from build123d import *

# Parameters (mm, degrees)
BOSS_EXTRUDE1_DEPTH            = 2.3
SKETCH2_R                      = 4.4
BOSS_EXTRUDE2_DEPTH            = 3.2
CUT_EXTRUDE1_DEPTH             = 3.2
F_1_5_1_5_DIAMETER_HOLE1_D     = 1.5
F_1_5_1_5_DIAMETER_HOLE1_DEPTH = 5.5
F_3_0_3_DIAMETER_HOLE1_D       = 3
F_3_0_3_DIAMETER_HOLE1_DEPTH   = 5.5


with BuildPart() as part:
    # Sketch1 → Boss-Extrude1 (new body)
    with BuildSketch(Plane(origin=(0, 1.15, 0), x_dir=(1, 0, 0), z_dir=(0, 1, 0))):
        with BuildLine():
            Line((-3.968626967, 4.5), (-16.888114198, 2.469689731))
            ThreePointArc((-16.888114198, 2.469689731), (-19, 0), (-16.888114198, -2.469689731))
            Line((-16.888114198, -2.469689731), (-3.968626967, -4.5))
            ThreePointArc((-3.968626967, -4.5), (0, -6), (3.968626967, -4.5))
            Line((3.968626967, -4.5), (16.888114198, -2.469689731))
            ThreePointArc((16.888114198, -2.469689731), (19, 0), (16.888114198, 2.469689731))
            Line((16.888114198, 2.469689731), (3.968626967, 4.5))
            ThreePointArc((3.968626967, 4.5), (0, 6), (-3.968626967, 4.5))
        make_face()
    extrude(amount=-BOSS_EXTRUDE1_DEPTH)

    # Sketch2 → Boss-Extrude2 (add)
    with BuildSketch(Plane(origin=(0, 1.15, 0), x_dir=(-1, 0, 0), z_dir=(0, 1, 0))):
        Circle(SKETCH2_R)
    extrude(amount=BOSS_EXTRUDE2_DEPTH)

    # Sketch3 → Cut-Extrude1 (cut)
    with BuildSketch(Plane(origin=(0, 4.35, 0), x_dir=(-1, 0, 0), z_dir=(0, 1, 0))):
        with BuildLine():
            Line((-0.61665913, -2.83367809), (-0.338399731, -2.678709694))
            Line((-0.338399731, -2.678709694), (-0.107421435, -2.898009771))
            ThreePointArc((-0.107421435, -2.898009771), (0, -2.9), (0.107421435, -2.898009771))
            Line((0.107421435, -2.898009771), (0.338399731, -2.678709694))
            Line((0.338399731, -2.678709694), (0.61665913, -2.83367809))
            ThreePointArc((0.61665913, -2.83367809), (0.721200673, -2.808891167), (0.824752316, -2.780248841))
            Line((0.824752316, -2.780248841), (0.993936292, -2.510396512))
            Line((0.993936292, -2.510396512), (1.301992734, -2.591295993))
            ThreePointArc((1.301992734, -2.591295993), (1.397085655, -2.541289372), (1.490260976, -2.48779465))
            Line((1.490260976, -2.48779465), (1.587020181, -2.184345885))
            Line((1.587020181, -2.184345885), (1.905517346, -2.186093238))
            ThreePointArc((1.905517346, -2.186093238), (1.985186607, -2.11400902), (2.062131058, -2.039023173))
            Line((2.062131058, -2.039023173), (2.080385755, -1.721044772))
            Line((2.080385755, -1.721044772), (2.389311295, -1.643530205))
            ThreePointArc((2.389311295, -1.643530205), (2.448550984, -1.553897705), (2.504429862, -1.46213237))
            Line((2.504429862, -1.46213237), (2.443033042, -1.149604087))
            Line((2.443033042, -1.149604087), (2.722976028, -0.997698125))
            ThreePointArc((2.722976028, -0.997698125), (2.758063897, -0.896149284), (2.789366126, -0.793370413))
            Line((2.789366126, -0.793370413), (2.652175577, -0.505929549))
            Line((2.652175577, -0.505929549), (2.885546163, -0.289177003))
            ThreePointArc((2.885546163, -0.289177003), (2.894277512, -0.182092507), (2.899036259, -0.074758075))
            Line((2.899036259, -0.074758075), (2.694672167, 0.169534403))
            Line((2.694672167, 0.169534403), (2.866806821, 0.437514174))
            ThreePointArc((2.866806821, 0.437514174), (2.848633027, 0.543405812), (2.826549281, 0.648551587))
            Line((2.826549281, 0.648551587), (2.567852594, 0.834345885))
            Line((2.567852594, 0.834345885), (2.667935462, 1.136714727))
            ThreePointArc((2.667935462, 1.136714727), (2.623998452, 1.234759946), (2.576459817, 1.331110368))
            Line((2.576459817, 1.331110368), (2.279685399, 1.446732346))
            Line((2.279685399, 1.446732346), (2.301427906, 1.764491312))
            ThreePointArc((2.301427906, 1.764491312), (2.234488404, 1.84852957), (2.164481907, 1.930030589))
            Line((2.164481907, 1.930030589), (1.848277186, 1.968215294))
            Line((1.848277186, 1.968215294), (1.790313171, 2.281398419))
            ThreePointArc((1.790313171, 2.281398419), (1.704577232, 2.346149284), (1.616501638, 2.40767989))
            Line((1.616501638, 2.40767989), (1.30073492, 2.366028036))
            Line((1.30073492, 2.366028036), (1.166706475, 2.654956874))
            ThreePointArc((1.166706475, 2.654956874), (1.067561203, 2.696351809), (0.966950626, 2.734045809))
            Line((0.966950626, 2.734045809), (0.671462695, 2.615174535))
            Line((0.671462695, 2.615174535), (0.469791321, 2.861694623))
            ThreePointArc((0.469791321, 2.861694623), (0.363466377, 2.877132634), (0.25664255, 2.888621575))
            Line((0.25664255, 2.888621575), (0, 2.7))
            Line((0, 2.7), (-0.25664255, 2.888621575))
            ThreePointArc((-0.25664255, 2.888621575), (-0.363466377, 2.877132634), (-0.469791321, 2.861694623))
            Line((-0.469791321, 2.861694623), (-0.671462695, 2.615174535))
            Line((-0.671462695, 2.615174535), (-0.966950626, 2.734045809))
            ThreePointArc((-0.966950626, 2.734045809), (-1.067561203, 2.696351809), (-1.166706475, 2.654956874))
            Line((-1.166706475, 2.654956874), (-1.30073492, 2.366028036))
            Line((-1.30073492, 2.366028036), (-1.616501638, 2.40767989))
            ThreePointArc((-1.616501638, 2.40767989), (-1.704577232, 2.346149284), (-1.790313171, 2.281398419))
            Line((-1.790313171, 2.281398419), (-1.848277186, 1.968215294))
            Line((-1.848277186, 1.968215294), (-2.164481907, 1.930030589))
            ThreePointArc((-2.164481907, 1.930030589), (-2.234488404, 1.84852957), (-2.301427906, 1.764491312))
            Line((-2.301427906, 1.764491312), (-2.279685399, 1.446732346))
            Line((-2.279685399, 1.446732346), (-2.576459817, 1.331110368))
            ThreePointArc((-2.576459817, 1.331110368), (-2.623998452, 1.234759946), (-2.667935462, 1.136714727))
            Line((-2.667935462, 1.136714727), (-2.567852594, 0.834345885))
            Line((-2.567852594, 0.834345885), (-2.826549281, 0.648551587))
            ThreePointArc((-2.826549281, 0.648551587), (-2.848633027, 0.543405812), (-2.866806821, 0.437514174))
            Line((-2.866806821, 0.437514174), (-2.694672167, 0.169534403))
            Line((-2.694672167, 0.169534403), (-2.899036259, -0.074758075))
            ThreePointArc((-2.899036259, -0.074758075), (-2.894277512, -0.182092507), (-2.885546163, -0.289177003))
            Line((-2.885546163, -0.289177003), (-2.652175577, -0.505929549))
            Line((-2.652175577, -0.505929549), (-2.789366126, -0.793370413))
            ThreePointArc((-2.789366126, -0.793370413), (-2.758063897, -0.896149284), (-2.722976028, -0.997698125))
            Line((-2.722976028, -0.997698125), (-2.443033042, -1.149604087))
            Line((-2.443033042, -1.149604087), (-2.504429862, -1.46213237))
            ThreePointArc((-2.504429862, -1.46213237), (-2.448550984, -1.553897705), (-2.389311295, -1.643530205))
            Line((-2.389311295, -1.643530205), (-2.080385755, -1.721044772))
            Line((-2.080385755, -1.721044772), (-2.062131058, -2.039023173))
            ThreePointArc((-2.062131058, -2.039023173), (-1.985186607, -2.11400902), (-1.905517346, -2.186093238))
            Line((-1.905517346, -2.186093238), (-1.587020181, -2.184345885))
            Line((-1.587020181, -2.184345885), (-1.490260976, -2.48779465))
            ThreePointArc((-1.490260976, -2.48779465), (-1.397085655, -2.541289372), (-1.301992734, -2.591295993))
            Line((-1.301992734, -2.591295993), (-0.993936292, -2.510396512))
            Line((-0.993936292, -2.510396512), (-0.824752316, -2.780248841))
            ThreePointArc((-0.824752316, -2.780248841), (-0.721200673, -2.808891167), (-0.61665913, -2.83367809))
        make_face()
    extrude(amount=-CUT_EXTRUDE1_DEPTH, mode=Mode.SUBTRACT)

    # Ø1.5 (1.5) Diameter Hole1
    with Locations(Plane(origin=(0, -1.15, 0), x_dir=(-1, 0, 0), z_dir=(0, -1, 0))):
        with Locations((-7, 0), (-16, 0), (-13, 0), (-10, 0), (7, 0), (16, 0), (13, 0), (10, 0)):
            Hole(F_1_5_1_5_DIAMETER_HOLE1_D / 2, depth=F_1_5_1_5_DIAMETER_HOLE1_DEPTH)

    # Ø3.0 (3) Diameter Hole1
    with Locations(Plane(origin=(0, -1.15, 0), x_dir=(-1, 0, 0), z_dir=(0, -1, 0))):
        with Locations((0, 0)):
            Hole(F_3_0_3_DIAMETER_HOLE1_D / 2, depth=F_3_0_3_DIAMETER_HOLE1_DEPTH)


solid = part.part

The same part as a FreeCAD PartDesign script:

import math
import FreeCAD as App
import Part
import Sketcher

doc = App.newDocument("Part")
body = doc.addObject("PartDesign::Body", "Body")

sketch1 = body.newObject("Sketcher::SketchObject", "Sketch")
sketch1.AttachmentSupport = (doc.getObject("XZ_Plane"), [""])
sketch1.MapMode = "FlatFace"
sketch1.AttachmentOffset = App.Placement(App.Vector(0, 0, -1.15), App.Rotation())
sketch1.addGeometry(Part.LineSegment(App.Vector(-3.968627, -4.5, 0), App.Vector(-16.888114, -2.46969, 0)), False)
sketch1.addGeometry(Part.ArcOfCircle(Part.Circle(App.Vector(-16.5, 0, 0), App.Vector(0, 0, 1), 2.5), math.radians(98.931045), math.radians(261.068955)), False)
sketch1.addGeometry(Part.LineSegment(App.Vector(-16.888114, 2.46969, 0), App.Vector(-3.968627, 4.5, 0)), False)
sketch1.addGeometry(Part.ArcOfCircle(Part.Circle(App.Vector(0, 0, 0), App.Vector(0, 0, 1), 6), math.radians(48.590378), math.radians(131.409622)), False)
sketch1.addGeometry(Part.LineSegment(App.Vector(3.968627, 4.5, 0), App.Vector(16.888114, 2.46969, 0)), False)
sketch1.addGeometry(Part.ArcOfCircle(Part.Circle(App.Vector(16.5, 0, 0), App.Vector(0, 0, 1), 2.5), math.radians(-81.068955), math.radians(81.068955)), False)
sketch1.addGeometry(Part.LineSegment(App.Vector(16.888114, -2.46969, 0), App.Vector(3.968627, -4.5, 0)), False)
sketch1.addGeometry(Part.ArcOfCircle(Part.Circle(App.Vector(0, 0, 0), App.Vector(0, 0, 1), 6), math.radians(-131.409622), math.radians(-48.590378)), False)
sketch1.addConstraint(Sketcher.Constraint("Tangent", 0, 2, 1, 2))
sketch1.addConstraint(Sketcher.Constraint("Tangent", 1, 1, 2, 1))
sketch1.addConstraint(Sketcher.Constraint("Coincident", 2, 2, 3, 2))
sketch1.addConstraint(Sketcher.Constraint("Coincident", 3, 1, 4, 1))
sketch1.addConstraint(Sketcher.Constraint("Tangent", 4, 2, 5, 2))
sketch1.addConstraint(Sketcher.Constraint("Tangent", 5, 1, 6, 1))
sketch1.addConstraint(Sketcher.Constraint("Coincident", 6, 2, 7, 2))
sketch1.addConstraint(Sketcher.Constraint("Coincident", 7, 1, 0, 1))
sketch1.addConstraint(Sketcher.Constraint("Coincident", 3, 3, -1, 1))
sketch1.addConstraint(Sketcher.Constraint("Coincident", 7, 3, -1, 1))
sketch1.addConstraint(Sketcher.Constraint("Equal", 1, 5))
sketch1.addConstraint(Sketcher.Constraint("Equal", 3, 7))
sketch1.addConstraint(Sketcher.Constraint("Symmetric", 1, 3, 5, 3, -1, 1))
sketch1.addConstraint(Sketcher.Constraint("Symmetric", 1, 1, 4, 2, -2))
sketch1.addConstraint(Sketcher.Constraint("Parallel", 0, 4))
sketch1.addConstraint(Sketcher.Constraint("Parallel", 2, 6))
sketch1.addConstraint(Sketcher.Constraint("Radius", 3, 6.0))
sketch1.addConstraint(Sketcher.Constraint("Radius", 1, 2.5))
sketch1.addConstraint(Sketcher.Constraint("DistanceX", 1, 3, 5, 3, 33.0))
sketch1.addConstraint(Sketcher.Constraint("DistanceY", 6, 2, 3, 1, 9.0))
pad1 = body.newObject("PartDesign::Pad", "Pad")
pad1.Profile = sketch1
pad1.Length = 2.3

sketch2 = body.newObject("Sketcher::SketchObject", "Sketch001")
sketch2.AttachmentSupport = (doc.getObject("XZ_Plane"), [""])
sketch2.MapMode = "FlatFace"
sketch2.AttachmentOffset = App.Placement(App.Vector(0, 0, -1.15), App.Rotation())
sketch2.addGeometry(Part.Circle(App.Vector(0, 0, 0), App.Vector(0, 0, 1), 4.4), False)
sketch2.addConstraint(Sketcher.Constraint("Coincident", 0, 3, -1, 1))
sketch2.addConstraint(Sketcher.Constraint("Diameter", 0, 8.8))
pad2 = body.newObject("PartDesign::Pad", "Pad001")
pad2.Profile = sketch2
pad2.Length = 3.2
pad2.Reversed = True

sketch3 = body.newObject("Sketcher::SketchObject", "Sketch002")
sketch3.AttachmentSupport = (doc.getObject("XZ_Plane"), [""])
sketch3.MapMode = "FlatFace"
sketch3.AttachmentOffset = App.Placement(App.Vector(0, 0, -4.35), App.Rotation())
sketch3.addGeometry(Part.LineSegment(App.Vector(0.616659, -2.833678, 0), App.Vector(0.3384, -2.67871, 0)), False)
sketch3.addGeometry(Part.LineSegment(App.Vector(0.3384, -2.67871, 0), App.Vector(0.107421, -2.89801, 0)), False)
sketch3.addGeometry(Part.ArcOfCircle(Part.Circle(App.Vector(0, -0.000001, 0), App.Vector(0, 0, 1), 2.899999), math.radians(-92.122829), math.radians(-87.877171)), False)
sketch3.addGeometry(Part.LineSegment(App.Vector(-0.107421, -2.89801, 0), App.Vector(-0.3384, -2.67871, 0)), False)
sketch3.addGeometry(Part.LineSegment(App.Vector(-0.3384, -2.67871, 0), App.Vector(-0.616659, -2.833678, 0)), False)
sketch3.addGeometry(Part.ArcOfCircle(Part.Circle(App.Vector(0, 0, 0), App.Vector(0, 0, 1), 2.9), math.radians(-106.522828), math.radians(-102.277172)), False)
sketch3.addGeometry(Part.LineSegment(App.Vector(-0.824752, -2.780249, 0), App.Vector(-0.993936, -2.510397, 0)), False)
sketch3.addGeometry(Part.LineSegment(App.Vector(-0.993936, -2.510397, 0), App.Vector(-1.301993, -2.591296, 0)), False)
sketch3.addGeometry(Part.ArcOfCircle(Part.Circle(App.Vector(0, 0, 0), App.Vector(0, 0, 1), 2.9), math.radians(-120.922829), math.radians(-116.677172)), False)
sketch3.addGeometry(Part.LineSegment(App.Vector(-1.490261, -2.487795, 0), App.Vector(-1.58702, -2.184346, 0)), False)
sketch3.addGeometry(Part.LineSegment(App.Vector(-1.58702, -2.184346, 0), App.Vector(-1.905517, -2.186093, 0)), False)
sketch3.addGeometry(Part.ArcOfCircle(Part.Circle(App.Vector(0, 0, 0), App.Vector(0, 0, 1), 2.9), math.radians(-135.322829), math.radians(-131.077171)), False)
sketch3.addGeometry(Part.LineSegment(App.Vector(-2.062131, -2.039023, 0), App.Vector(-2.080386, -1.721045, 0)), False)
sketch3.addGeometry(Part.LineSegment(App.Vector(-2.080386, -1.721045, 0), App.Vector(-2.389311, -1.64353, 0)), False)
sketch3.addGeometry(Part.ArcOfCircle(Part.Circle(App.Vector(0, 0, 0), App.Vector(0, 0, 1), 2.9), math.radians(-149.722828), math.radians(-145.477171)), False)
sketch3.addGeometry(Part.LineSegment(App.Vector(-2.50443, -1.462132, 0), App.Vector(-2.443033, -1.149604, 0)), False)
sketch3.addGeometry(Part.LineSegment(App.Vector(-2.443033, -1.149604, 0), App.Vector(-2.722976, -0.997698, 0)), False)
sketch3.addGeometry(Part.ArcOfCircle(Part.Circle(App.Vector(0, 0, 0), App.Vector(0, 0, 1), 2.9), math.radians(-164.122829), math.radians(-159.877171)), False)
sketch3.addGeometry(Part.LineSegment(App.Vector(-2.789366, -0.79337, 0), App.Vector(-2.652176, -0.50593, 0)), False)
sketch3.addGeometry(Part.LineSegment(App.Vector(-2.652176, -0.50593, 0), App.Vector(-2.885546, -0.289177, 0)), False)
sketch3.addGeometry(Part.ArcOfCircle(Part.Circle(App.Vector(0, 0, 0), App.Vector(0, 0, 1), 2.9), math.radians(-178.522828), math.radians(-174.277171)), False)
sketch3.addGeometry(Part.LineSegment(App.Vector(-2.899036, -0.074758, 0), App.Vector(-2.694672, 0.169534, 0)), False)
sketch3.addGeometry(Part.LineSegment(App.Vector(-2.694672, 0.169534, 0), App.Vector(-2.866807, 0.437514, 0)), False)
sketch3.addGeometry(Part.ArcOfCircle(Part.Circle(App.Vector(0, 0, 0), App.Vector(0, 0, 1), 2.9), math.radians(167.077171), math.radians(171.322828)), False)
sketch3.addGeometry(Part.LineSegment(App.Vector(-2.826549, 0.648552, 0), App.Vector(-2.567853, 0.834346, 0)), False)
sketch3.addGeometry(Part.LineSegment(App.Vector(-2.567853, 0.834346, 0), App.Vector(-2.667935, 1.136715, 0)), False)
sketch3.addGeometry(Part.ArcOfCircle(Part.Circle(App.Vector(0, 0, 0), App.Vector(0, 0, 1), 2.9), math.radians(152.677171), math.radians(156.922829)), False)
sketch3.addGeometry(Part.LineSegment(App.Vector(-2.57646, 1.33111, 0), App.Vector(-2.279685, 1.446732, 0)), False)
sketch3.addGeometry(Part.LineSegment(App.Vector(-2.279685, 1.446732, 0), App.Vector(-2.301428, 1.764491, 0)), False)
sketch3.addGeometry(Part.ArcOfCircle(Part.Circle(App.Vector(0, 0, 0), App.Vector(0, 0, 1), 2.9), math.radians(138.277171), math.radians(142.522829)), False)
sketch3.addGeometry(Part.LineSegment(App.Vector(-2.164482, 1.930031, 0), App.Vector(-1.848277, 1.968215, 0)), False)
sketch3.addGeometry(Part.LineSegment(App.Vector(-1.848277, 1.968215, 0), App.Vector(-1.790313, 2.281398, 0)), False)
sketch3.addGeometry(Part.ArcOfCircle(Part.Circle(App.Vector(-0.000001, 0.000001, 0), App.Vector(0, 0, 1), 2.899999), math.radians(123.87717), math.radians(128.12283)), False)
sketch3.addGeometry(Part.LineSegment(App.Vector(-1.616502, 2.40768, 0), App.Vector(-1.300735, 2.366028, 0)), False)
sketch3.addGeometry(Part.LineSegment(App.Vector(-1.300735, 2.366028, 0), App.Vector(-1.166706, 2.654957, 0)), False)
sketch3.addGeometry(Part.ArcOfCircle(Part.Circle(App.Vector(0, 0, 0), App.Vector(0, 0, 1), 2.9), math.radians(109.477171), math.radians(113.722829)), False)
sketch3.addGeometry(Part.LineSegment(App.Vector(-0.966951, 2.734046, 0), App.Vector(-0.671463, 2.615175, 0)), False)
sketch3.addGeometry(Part.LineSegment(App.Vector(-0.671463, 2.615175, 0), App.Vector(-0.469791, 2.861695, 0)), False)
sketch3.addGeometry(Part.ArcOfCircle(Part.Circle(App.Vector(0, 0, 0), App.Vector(0, 0, 1), 2.9), math.radians(95.077171), math.radians(99.322829)), False)
sketch3.addGeometry(Part.LineSegment(App.Vector(-0.256643, 2.888622, 0), App.Vector(0, 2.7, 0)), False)
sketch3.addGeometry(Part.LineSegment(App.Vector(0, 2.7, 0), App.Vector(0.256643, 2.888622, 0)), False)
sketch3.addGeometry(Part.ArcOfCircle(Part.Circle(App.Vector(0, 0, 0), App.Vector(0, 0, 1), 2.9), math.radians(80.677171), math.radians(84.922829)), False)
sketch3.addGeometry(Part.LineSegment(App.Vector(0.469791, 2.861695, 0), App.Vector(0.671463, 2.615175, 0)), False)
sketch3.addGeometry(Part.LineSegment(App.Vector(0.671463, 2.615175, 0), App.Vector(0.966951, 2.734046, 0)), False)
sketch3.addGeometry(Part.ArcOfCircle(Part.Circle(App.Vector(0, 0, 0), App.Vector(0, 0, 1), 2.9), math.radians(66.277171), math.radians(70.522829)), False)
sketch3.addGeometry(Part.LineSegment(App.Vector(1.166706, 2.654957, 0), App.Vector(1.300735, 2.366028, 0)), False)
sketch3.addGeometry(Part.LineSegment(App.Vector(1.300735, 2.366028, 0), App.Vector(1.616502, 2.40768, 0)), False)
sketch3.addGeometry(Part.ArcOfCircle(Part.Circle(App.Vector(0.000001, 0.000001, 0), App.Vector(0, 0, 1), 2.899999), math.radians(51.87717), math.radians(56.12283)), False)
sketch3.addGeometry(Part.LineSegment(App.Vector(1.790313, 2.281398, 0), App.Vector(1.848277, 1.968215, 0)), False)
sketch3.addGeometry(Part.LineSegment(App.Vector(1.848277, 1.968215, 0), App.Vector(2.164482, 1.930031, 0)), False)
sketch3.addGeometry(Part.ArcOfCircle(Part.Circle(App.Vector(0, 0, 0), App.Vector(0, 0, 1), 2.9), math.radians(37.477171), math.radians(41.722829)), False)
sketch3.addGeometry(Part.LineSegment(App.Vector(2.301428, 1.764491, 0), App.Vector(2.279685, 1.446732, 0)), False)
sketch3.addGeometry(Part.LineSegment(App.Vector(2.279685, 1.446732, 0), App.Vector(2.57646, 1.33111, 0)), False)
sketch3.addGeometry(Part.ArcOfCircle(Part.Circle(App.Vector(0, 0, 0), App.Vector(0, 0, 1), 2.9), math.radians(23.077171), math.radians(27.322829)), False)
sketch3.addGeometry(Part.LineSegment(App.Vector(2.667935, 1.136715, 0), App.Vector(2.567853, 0.834346, 0)), False)
sketch3.addGeometry(Part.LineSegment(App.Vector(2.567853, 0.834346, 0), App.Vector(2.826549, 0.648552, 0)), False)
sketch3.addGeometry(Part.ArcOfCircle(Part.Circle(App.Vector(0, 0, 0), App.Vector(0, 0, 1), 2.9), math.radians(8.677172), math.radians(12.922829)), False)
sketch3.addGeometry(Part.LineSegment(App.Vector(2.866807, 0.437514, 0), App.Vector(2.694672, 0.169534, 0)), False)
sketch3.addGeometry(Part.LineSegment(App.Vector(2.694672, 0.169534, 0), App.Vector(2.899036, -0.074758, 0)), False)
sketch3.addGeometry(Part.ArcOfCircle(Part.Circle(App.Vector(0, 0, 0), App.Vector(0, 0, 1), 2.9), math.radians(-5.722829), math.radians(-1.477172)), False)
sketch3.addGeometry(Part.LineSegment(App.Vector(2.885546, -0.289177, 0), App.Vector(2.652176, -0.50593, 0)), False)
sketch3.addGeometry(Part.LineSegment(App.Vector(2.652176, -0.50593, 0), App.Vector(2.789366, -0.79337, 0)), False)
sketch3.addGeometry(Part.ArcOfCircle(Part.Circle(App.Vector(0, 0, 0), App.Vector(0, 0, 1), 2.9), math.radians(-20.122829), math.radians(-15.877171)), False)
sketch3.addGeometry(Part.LineSegment(App.Vector(2.722976, -0.997698, 0), App.Vector(2.443033, -1.149604, 0)), False)
sketch3.addGeometry(Part.LineSegment(App.Vector(2.443033, -1.149604, 0), App.Vector(2.50443, -1.462132, 0)), False)
sketch3.addGeometry(Part.ArcOfCircle(Part.Circle(App.Vector(0, 0, 0), App.Vector(0, 0, 1), 2.9), math.radians(-34.522829), math.radians(-30.277172)), False)
sketch3.addGeometry(Part.LineSegment(App.Vector(2.389311, -1.64353, 0), App.Vector(2.080386, -1.721045, 0)), False)
sketch3.addGeometry(Part.LineSegment(App.Vector(2.080386, -1.721045, 0), App.Vector(2.062131, -2.039023, 0)), False)
sketch3.addGeometry(Part.ArcOfCircle(Part.Circle(App.Vector(0, 0, 0), App.Vector(0, 0, 1), 2.9), math.radians(-48.922829), math.radians(-44.677171)), False)
sketch3.addGeometry(Part.LineSegment(App.Vector(1.905517, -2.186093, 0), App.Vector(1.58702, -2.184346, 0)), False)
sketch3.addGeometry(Part.LineSegment(App.Vector(1.58702, -2.184346, 0), App.Vector(1.490261, -2.487795, 0)), False)
sketch3.addGeometry(Part.ArcOfCircle(Part.Circle(App.Vector(0, 0, 0), App.Vector(0, 0, 1), 2.9), math.radians(-63.322828), math.radians(-59.077171)), False)
sketch3.addGeometry(Part.LineSegment(App.Vector(1.301993, -2.591296, 0), App.Vector(0.993936, -2.510397, 0)), False)
sketch3.addGeometry(Part.LineSegment(App.Vector(0.993936, -2.510397, 0), App.Vector(0.824752, -2.780249, 0)), False)
sketch3.addGeometry(Part.ArcOfCircle(Part.Circle(App.Vector(0, 0, 0), App.Vector(0, 0, 1), 2.9), math.radians(-77.722828), math.radians(-73.477172)), False)
sketch3.addConstraint(Sketcher.Constraint("Coincident", 0, 2, 1, 1))
sketch3.addConstraint(Sketcher.Constraint("Coincident", 1, 2, 2, 2))
sketch3.addConstraint(Sketcher.Constraint("Coincident", 2, 1, 3, 1))
sketch3.addConstraint(Sketcher.Constraint("Coincident", 3, 2, 4, 1))
sketch3.addConstraint(Sketcher.Constraint("Coincident", 4, 2, 5, 2))
sketch3.addConstraint(Sketcher.Constraint("Coincident", 5, 1, 6, 1))
sketch3.addConstraint(Sketcher.Constraint("Coincident", 6, 2, 7, 1))
sketch3.addConstraint(Sketcher.Constraint("Coincident", 7, 2, 8, 2))
sketch3.addConstraint(Sketcher.Constraint("Coincident", 8, 1, 9, 1))
sketch3.addConstraint(Sketcher.Constraint("Coincident", 9, 2, 10, 1))
sketch3.addConstraint(Sketcher.Constraint("Coincident", 10, 2, 11, 2))
sketch3.addConstraint(Sketcher.Constraint("Coincident", 11, 1, 12, 1))
sketch3.addConstraint(Sketcher.Constraint("Coincident", 12, 2, 13, 1))
sketch3.addConstraint(Sketcher.Constraint("Coincident", 13, 2, 14, 2))
sketch3.addConstraint(Sketcher.Constraint("Coincident", 14, 1, 15, 1))
sketch3.addConstraint(Sketcher.Constraint("Coincident", 15, 2, 16, 1))
sketch3.addConstraint(Sketcher.Constraint("Coincident", 16, 2, 17, 2))
sketch3.addConstraint(Sketcher.Constraint("Coincident", 17, 1, 18, 1))
sketch3.addConstraint(Sketcher.Constraint("Coincident", 18, 2, 19, 1))
sketch3.addConstraint(Sketcher.Constraint("Coincident", 19, 2, 20, 2))
sketch3.addConstraint(Sketcher.Constraint("Coincident", 20, 1, 21, 1))
sketch3.addConstraint(Sketcher.Constraint("Coincident", 21, 2, 22, 1))
sketch3.addConstraint(Sketcher.Constraint("Coincident", 22, 2, 23, 2))
sketch3.addConstraint(Sketcher.Constraint("Coincident", 23, 1, 24, 1))
sketch3.addConstraint(Sketcher.Constraint("Coincident", 24, 2, 25, 1))
sketch3.addConstraint(Sketcher.Constraint("Coincident", 25, 2, 26, 2))
sketch3.addConstraint(Sketcher.Constraint("Coincident", 26, 1, 27, 1))
sketch3.addConstraint(Sketcher.Constraint("Coincident", 27, 2, 28, 1))
sketch3.addConstraint(Sketcher.Constraint("Coincident", 28, 2, 29, 2))
sketch3.addConstraint(Sketcher.Constraint("Coincident", 29, 1, 30, 1))
sketch3.addConstraint(Sketcher.Constraint("Coincident", 30, 2, 31, 1))
sketch3.addConstraint(Sketcher.Constraint("Coincident", 31, 2, 32, 2))
sketch3.addConstraint(Sketcher.Constraint("Coincident", 32, 1, 33, 1))
sketch3.addConstraint(Sketcher.Constraint("Coincident", 33, 2, 34, 1))
sketch3.addConstraint(Sketcher.Constraint("Coincident", 34, 2, 35, 2))
sketch3.addConstraint(Sketcher.Constraint("Coincident", 35, 1, 36, 1))
sketch3.addConstraint(Sketcher.Constraint("Coincident", 36, 2, 37, 1))
sketch3.addConstraint(Sketcher.Constraint("Coincident", 37, 2, 38, 2))
sketch3.addConstraint(Sketcher.Constraint("Coincident", 38, 1, 39, 1))
sketch3.addConstraint(Sketcher.Constraint("Coincident", 39, 2, 40, 1))
sketch3.addConstraint(Sketcher.Constraint("Coincident", 40, 2, 41, 2))
sketch3.addConstraint(Sketcher.Constraint("Coincident", 41, 1, 42, 1))
sketch3.addConstraint(Sketcher.Constraint("Coincident", 42, 2, 43, 1))
sketch3.addConstraint(Sketcher.Constraint("Coincident", 43, 2, 44, 2))
sketch3.addConstraint(Sketcher.Constraint("Coincident", 44, 1, 45, 1))
sketch3.addConstraint(Sketcher.Constraint("Coincident", 45, 2, 46, 1))
sketch3.addConstraint(Sketcher.Constraint("Coincident", 46, 2, 47, 2))
sketch3.addConstraint(Sketcher.Constraint("Coincident", 47, 1, 48, 1))
sketch3.addConstraint(Sketcher.Constraint("Coincident", 48, 2, 49, 1))
sketch3.addConstraint(Sketcher.Constraint("Coincident", 49, 2, 50, 2))
sketch3.addConstraint(Sketcher.Constraint("Coincident", 50, 1, 51, 1))
sketch3.addConstraint(Sketcher.Constraint("Coincident", 51, 2, 52, 1))
sketch3.addConstraint(Sketcher.Constraint("Coincident", 52, 2, 53, 2))
sketch3.addConstraint(Sketcher.Constraint("Coincident", 53, 1, 54, 1))
sketch3.addConstraint(Sketcher.Constraint("Coincident", 54, 2, 55, 1))
sketch3.addConstraint(Sketcher.Constraint("Coincident", 55, 2, 56, 2))
sketch3.addConstraint(Sketcher.Constraint("Coincident", 56, 1, 57, 1))
sketch3.addConstraint(Sketcher.Constraint("Coincident", 57, 2, 58, 1))
sketch3.addConstraint(Sketcher.Constraint("Coincident", 58, 2, 59, 2))
sketch3.addConstraint(Sketcher.Constraint("Coincident", 59, 1, 60, 1))
sketch3.addConstraint(Sketcher.Constraint("Coincident", 60, 2, 61, 1))
sketch3.addConstraint(Sketcher.Constraint("Coincident", 61, 2, 62, 2))
sketch3.addConstraint(Sketcher.Constraint("Coincident", 62, 1, 63, 1))
sketch3.addConstraint(Sketcher.Constraint("Coincident", 63, 2, 64, 1))
sketch3.addConstraint(Sketcher.Constraint("Coincident", 64, 2, 65, 2))
sketch3.addConstraint(Sketcher.Constraint("Coincident", 65, 1, 66, 1))
sketch3.addConstraint(Sketcher.Constraint("Coincident", 66, 2, 67, 1))
sketch3.addConstraint(Sketcher.Constraint("Coincident", 67, 2, 68, 2))
sketch3.addConstraint(Sketcher.Constraint("Coincident", 68, 1, 69, 1))
sketch3.addConstraint(Sketcher.Constraint("Coincident", 69, 2, 70, 1))
sketch3.addConstraint(Sketcher.Constraint("Coincident", 70, 2, 71, 2))
sketch3.addConstraint(Sketcher.Constraint("Coincident", 71, 1, 72, 1))
sketch3.addConstraint(Sketcher.Constraint("Coincident", 72, 2, 73, 1))
sketch3.addConstraint(Sketcher.Constraint("Coincident", 73, 2, 74, 2))
sketch3.addConstraint(Sketcher.Constraint("Coincident", 74, 1, 0, 1))
sketch3.addConstraint(Sketcher.Constraint("Coincident", 2, 3, -1, 1))
sketch3.addConstraint(Sketcher.Constraint("Coincident", 5, 3, -1, 1))
sketch3.addConstraint(Sketcher.Constraint("Coincident", 8, 3, -1, 1))
sketch3.addConstraint(Sketcher.Constraint("Coincident", 11, 3, -1, 1))
sketch3.addConstraint(Sketcher.Constraint("Coincident", 14, 3, -1, 1))
sketch3.addConstraint(Sketcher.Constraint("Coincident", 17, 3, -1, 1))
sketch3.addConstraint(Sketcher.Constraint("Coincident", 20, 3, -1, 1))
sketch3.addConstraint(Sketcher.Constraint("Coincident", 23, 3, -1, 1))
sketch3.addConstraint(Sketcher.Constraint("Coincident", 26, 3, -1, 1))
sketch3.addConstraint(Sketcher.Constraint("Coincident", 29, 3, -1, 1))
sketch3.addConstraint(Sketcher.Constraint("Coincident", 32, 3, -1, 1))
sketch3.addConstraint(Sketcher.Constraint("Coincident", 35, 3, -1, 1))
sketch3.addConstraint(Sketcher.Constraint("Coincident", 38, 3, -1, 1))
sketch3.addConstraint(Sketcher.Constraint("Coincident", 41, 3, -1, 1))
sketch3.addConstraint(Sketcher.Constraint("Coincident", 44, 3, -1, 1))
sketch3.addConstraint(Sketcher.Constraint("Coincident", 47, 3, -1, 1))
sketch3.addConstraint(Sketcher.Constraint("Coincident", 50, 3, -1, 1))
sketch3.addConstraint(Sketcher.Constraint("Coincident", 53, 3, -1, 1))
sketch3.addConstraint(Sketcher.Constraint("Coincident", 56, 3, -1, 1))
sketch3.addConstraint(Sketcher.Constraint("Coincident", 59, 3, -1, 1))
sketch3.addConstraint(Sketcher.Constraint("Coincident", 62, 3, -1, 1))
sketch3.addConstraint(Sketcher.Constraint("Coincident", 65, 3, -1, 1))
sketch3.addConstraint(Sketcher.Constraint("Coincident", 68, 3, -1, 1))
sketch3.addConstraint(Sketcher.Constraint("Coincident", 71, 3, -1, 1))
sketch3.addConstraint(Sketcher.Constraint("Coincident", 74, 3, -1, 1))
sketch3.addConstraint(Sketcher.Constraint("Equal", 2, 5))
sketch3.addConstraint(Sketcher.Constraint("Equal", 5, 8))
sketch3.addConstraint(Sketcher.Constraint("Equal", 8, 11))
sketch3.addConstraint(Sketcher.Constraint("Equal", 11, 14))
sketch3.addConstraint(Sketcher.Constraint("Equal", 14, 17))
sketch3.addConstraint(Sketcher.Constraint("Equal", 17, 20))
sketch3.addConstraint(Sketcher.Constraint("Equal", 20, 23))
sketch3.addConstraint(Sketcher.Constraint("Equal", 23, 26))
sketch3.addConstraint(Sketcher.Constraint("Equal", 26, 29))
sketch3.addConstraint(Sketcher.Constraint("Equal", 29, 32))
sketch3.addConstraint(Sketcher.Constraint("Equal", 32, 35))
sketch3.addConstraint(Sketcher.Constraint("Equal", 35, 38))
sketch3.addConstraint(Sketcher.Constraint("Equal", 38, 41))
sketch3.addConstraint(Sketcher.Constraint("Equal", 41, 44))
sketch3.addConstraint(Sketcher.Constraint("Equal", 44, 47))
sketch3.addConstraint(Sketcher.Constraint("Equal", 47, 50))
sketch3.addConstraint(Sketcher.Constraint("Equal", 50, 53))
sketch3.addConstraint(Sketcher.Constraint("Equal", 53, 56))
sketch3.addConstraint(Sketcher.Constraint("Equal", 56, 59))
sketch3.addConstraint(Sketcher.Constraint("Equal", 59, 62))
sketch3.addConstraint(Sketcher.Constraint("Equal", 62, 65))
sketch3.addConstraint(Sketcher.Constraint("Equal", 65, 68))
sketch3.addConstraint(Sketcher.Constraint("Equal", 68, 71))
sketch3.addConstraint(Sketcher.Constraint("Equal", 71, 74))
sketch3.addConstraint(Sketcher.Constraint("Symmetric", 0, 2, 3, 2, -2))
sketch3.addConstraint(Sketcher.Constraint("Symmetric", 36, 2, 42, 2, -2))
sketch3.addConstraint(Sketcher.Constraint("Symmetric", 33, 2, 45, 2, -2))
sketch3.addConstraint(Sketcher.Constraint("Symmetric", 30, 2, 48, 2, -2))
sketch3.addConstraint(Sketcher.Constraint("Symmetric", 27, 2, 51, 2, -2))
sketch3.addConstraint(Sketcher.Constraint("Symmetric", 24, 2, 54, 2, -2))
sketch3.addConstraint(Sketcher.Constraint("Symmetric", 21, 2, 57, 2, -2))
sketch3.addConstraint(Sketcher.Constraint("Symmetric", 18, 2, 60, 2, -2))
sketch3.addConstraint(Sketcher.Constraint("Symmetric", 15, 2, 63, 2, -2))
sketch3.addConstraint(Sketcher.Constraint("Symmetric", 12, 2, 66, 2, -2))
sketch3.addConstraint(Sketcher.Constraint("Symmetric", 9, 2, 69, 2, -2))
sketch3.addConstraint(Sketcher.Constraint("Symmetric", 6, 2, 72, 2, -2))
sketch3.addConstraint(Sketcher.Constraint("PointOnObject", 39, 2, -2))
sketch3.addConstraint(Sketcher.Constraint("Horizontal", 1, 2, 2, 1))
sketch3.addConstraint(Sketcher.Constraint("Horizontal", 38, 1, 40, 2))
sketch3.addConstraint(Sketcher.Constraint("Horizontal", 37, 2, 41, 1))
sketch3.addConstraint(Sketcher.Constraint("Horizontal", 35, 1, 43, 2))
sketch3.addConstraint(Sketcher.Constraint("Horizontal", 34, 2, 44, 1))
sketch3.addConstraint(Sketcher.Constraint("Horizontal", 32, 1, 46, 2))
sketch3.addConstraint(Sketcher.Constraint("Horizontal", 31, 2, 47, 1))
sketch3.addConstraint(Sketcher.Constraint("Horizontal", 29, 1, 49, 2))
sketch3.addConstraint(Sketcher.Constraint("Horizontal", 28, 2, 50, 1))
sketch3.addConstraint(Sketcher.Constraint("Horizontal", 26, 1, 52, 2))
sketch3.addConstraint(Sketcher.Constraint("Horizontal", 25, 2, 53, 1))
sketch3.addConstraint(Sketcher.Constraint("Horizontal", 23, 1, 55, 2))
sketch3.addConstraint(Sketcher.Constraint("Horizontal", 22, 2, 56, 1))
sketch3.addConstraint(Sketcher.Constraint("Horizontal", 20, 1, 58, 2))
sketch3.addConstraint(Sketcher.Constraint("Horizontal", 19, 2, 59, 1))
sketch3.addConstraint(Sketcher.Constraint("Horizontal", 17, 1, 61, 2))
sketch3.addConstraint(Sketcher.Constraint("Horizontal", 16, 2, 62, 1))
sketch3.addConstraint(Sketcher.Constraint("Horizontal", 14, 1, 64, 2))
sketch3.addConstraint(Sketcher.Constraint("Horizontal", 13, 2, 65, 1))
sketch3.addConstraint(Sketcher.Constraint("Horizontal", 11, 1, 67, 2))
sketch3.addConstraint(Sketcher.Constraint("Horizontal", 10, 2, 68, 1))
sketch3.addConstraint(Sketcher.Constraint("Horizontal", 8, 1, 70, 2))
sketch3.addConstraint(Sketcher.Constraint("Horizontal", 7, 2, 71, 1))
sketch3.addConstraint(Sketcher.Constraint("Horizontal", 5, 1, 73, 2))
sketch3.addConstraint(Sketcher.Constraint("Horizontal", 4, 2, 74, 1))
sketch3.addConstraint(Sketcher.Constraint("Equal", 0, 1))
sketch3.addConstraint(Sketcher.Constraint("Equal", 4, 6))
sketch3.addConstraint(Sketcher.Constraint("Equal", 6, 7))
sketch3.addConstraint(Sketcher.Constraint("Equal", 7, 9))
sketch3.addConstraint(Sketcher.Constraint("Equal", 9, 10))
sketch3.addConstraint(Sketcher.Constraint("Equal", 10, 12))
sketch3.addConstraint(Sketcher.Constraint("Equal", 12, 13))
sketch3.addConstraint(Sketcher.Constraint("Equal", 13, 15))
sketch3.addConstraint(Sketcher.Constraint("Equal", 15, 16))
sketch3.addConstraint(Sketcher.Constraint("Equal", 16, 18))
sketch3.addConstraint(Sketcher.Constraint("Equal", 18, 19))
sketch3.addConstraint(Sketcher.Constraint("Equal", 19, 21))
sketch3.addConstraint(Sketcher.Constraint("Equal", 21, 22))
sketch3.addConstraint(Sketcher.Constraint("Equal", 22, 24))
sketch3.addConstraint(Sketcher.Constraint("Equal", 24, 25))
sketch3.addConstraint(Sketcher.Constraint("Equal", 25, 27))
sketch3.addConstraint(Sketcher.Constraint("Equal", 27, 28))
sketch3.addConstraint(Sketcher.Constraint("Equal", 28, 30))
sketch3.addConstraint(Sketcher.Constraint("Equal", 30, 31))
sketch3.addConstraint(Sketcher.Constraint("Equal", 31, 33))
sketch3.addConstraint(Sketcher.Constraint("Equal", 33, 34))
sketch3.addConstraint(Sketcher.Constraint("Equal", 34, 36))
sketch3.addConstraint(Sketcher.Constraint("Equal", 36, 37))
sketch3.addConstraint(Sketcher.Constraint("Equal", 37, 39))
sketch3.addConstraint(Sketcher.Constraint("Radius", 2, 2.899999))
sketch3.addConstraint(Sketcher.Constraint("DistanceY", -1, 1, 39, 2, 2.7))
sketch3.addConstraint(Sketcher.Constraint("Distance", 0, 0.318502))
sketch3.addConstraint(Sketcher.Constraint("DistanceX", -1, 1, 0, 2, 0.3384))
sketch3.addConstraint(Sketcher.Constraint("DistanceY", 16, 2, -1, 1, 0.997698))
sketch3.addConstraint(Sketcher.Constraint("DistanceY", -1, 1, 31, 2, 2.281398))
sketch3.addConstraint(Sketcher.Constraint("DistanceX", 32, 1, -1, 1, 1.616502))
sketch3.addConstraint(Sketcher.Constraint("DistanceY", 0, 2, -1, 1, 2.67871))
sketch3.addConstraint(Sketcher.Constraint("DistanceY", 5, 1, -1, 1, 2.780249))
sketch3.addConstraint(Sketcher.Constraint("DistanceX", 8, 1, -1, 1, 1.490261))
sketch3.addConstraint(Sketcher.Constraint("DistanceX", 9, 2, -1, 1, 1.58702))
sketch3.addConstraint(Sketcher.Constraint("DistanceX", 11, 1, -1, 1, 2.062131))
sketch3.addConstraint(Sketcher.Constraint("DistanceX", 13, 2, -1, 1, 2.389311))
sketch3.addConstraint(Sketcher.Constraint("DistanceX", 14, 1, -1, 1, 2.50443))
sketch3.addConstraint(Sketcher.Constraint("DistanceY", 17, 1, -1, 1, 0.79337))
sketch3.addConstraint(Sketcher.Constraint("DistanceY", 18, 2, -1, 1, 0.50593))
sketch3.addConstraint(Sketcher.Constraint("DistanceY", 20, 1, -1, 1, 0.074758))
sketch3.addConstraint(Sketcher.Constraint("DistanceX", 23, 1, -1, 1, 2.826549))
sketch3.addConstraint(Sketcher.Constraint("DistanceX", 26, 1, -1, 1, 2.57646))
sketch3.addConstraint(Sketcher.Constraint("DistanceY", -1, 1, 28, 2, 1.764491))
sketch3.addConstraint(Sketcher.Constraint("DistanceX", 29, 1, -1, 1, 2.164482))
sketch3.addConstraint(Sketcher.Constraint("DistanceY", -1, 1, 33, 2, 2.366028))
sketch3.addConstraint(Sketcher.Constraint("DistanceX", 35, 1, -1, 1, 0.966951))
sketch3.addConstraint(Sketcher.Constraint("DistanceX", 37, 2, -1, 1, 0.469791))
sketch3.addConstraint(Sketcher.Constraint("DistanceX", 6, 2, -1, 1, 0.993936))
sketch3.addConstraint(Sketcher.Constraint("DistanceX", 21, 2, -1, 1, 2.694672))
sketch3.addConstraint(Sketcher.Constraint("DistanceX", 24, 2, -1, 1, 2.567853))
pocket1 = body.newObject("PartDesign::Pocket", "Pocket")
pocket1.Profile = sketch3
pocket1.Length = 3.2
pocket1.Reversed = True

sketch4 = body.newObject("Sketcher::SketchObject", "Sketch003")
sketch4.AttachmentSupport = (doc.getObject("XZ_Plane"), [""])
sketch4.MapMode = "FlatFace"
sketch4.AttachmentOffset = App.Placement(App.Vector(0, 0, 1.15), App.Rotation())
sketch4.addGeometry(Part.Circle(App.Vector(7, 0, 0), App.Vector(0, 0, 1), 0.75), False)
sketch4.addGeometry(Part.Circle(App.Vector(16, 0, 0), App.Vector(0, 0, 1), 0.75), False)
sketch4.addGeometry(Part.Circle(App.Vector(13, 0, 0), App.Vector(0, 0, 1), 0.75), False)
sketch4.addGeometry(Part.Circle(App.Vector(10, 0, 0), App.Vector(0, 0, 1), 0.75), False)
sketch4.addGeometry(Part.Circle(App.Vector(-7, 0, 0), App.Vector(0, 0, 1), 0.75), False)
sketch4.addGeometry(Part.Circle(App.Vector(-16, 0, 0), App.Vector(0, 0, 1), 0.75), False)
sketch4.addGeometry(Part.Circle(App.Vector(-13, 0, 0), App.Vector(0, 0, 1), 0.75), False)
sketch4.addGeometry(Part.Circle(App.Vector(-10, 0, 0), App.Vector(0, 0, 1), 0.75), False)
sketch4.addConstraint(Sketcher.Constraint("Equal", 0, 1))
sketch4.addConstraint(Sketcher.Constraint("Equal", 1, 2))
sketch4.addConstraint(Sketcher.Constraint("Equal", 2, 3))
sketch4.addConstraint(Sketcher.Constraint("Equal", 3, 4))
sketch4.addConstraint(Sketcher.Constraint("Equal", 4, 5))
sketch4.addConstraint(Sketcher.Constraint("Equal", 5, 6))
sketch4.addConstraint(Sketcher.Constraint("Equal", 6, 7))
sketch4.addConstraint(Sketcher.Constraint("Symmetric", 0, 3, 4, 3, -1, 1))
sketch4.addConstraint(Sketcher.Constraint("Symmetric", 1, 3, 5, 3, -1, 1))
sketch4.addConstraint(Sketcher.Constraint("Symmetric", 2, 3, 6, 3, -1, 1))
sketch4.addConstraint(Sketcher.Constraint("Symmetric", 3, 3, 7, 3, -1, 1))
sketch4.addConstraint(Sketcher.Constraint("PointOnObject", 0, 3, -1))
sketch4.addConstraint(Sketcher.Constraint("PointOnObject", 1, 3, -1))
sketch4.addConstraint(Sketcher.Constraint("PointOnObject", 2, 3, -1))
sketch4.addConstraint(Sketcher.Constraint("PointOnObject", 3, 3, -1))
sketch4.addConstraint(Sketcher.Constraint("Diameter", 0, 1.5))
sketch4.addConstraint(Sketcher.Constraint("DistanceX", -1, 1, 0, 3, 7.0))
sketch4.addConstraint(Sketcher.Constraint("DistanceX", -1, 1, 1, 3, 16.0))
sketch4.addConstraint(Sketcher.Constraint("DistanceX", -1, 1, 2, 3, 13.0))
sketch4.addConstraint(Sketcher.Constraint("DistanceX", -1, 1, 3, 3, 10.0))
doc.recompute()
hole = body.newObject("PartDesign::Hole", "Hole")
hole.Profile = sketch4
hole.ThreadType = "None"
hole.Diameter = 1.5
hole.DepthType = "Dimension"
hole.Depth = 5.5
hole.DrillPoint = "Flat"

sketch5 = body.newObject("Sketcher::SketchObject", "Sketch004")
sketch5.AttachmentSupport = (doc.getObject("XZ_Plane"), [""])
sketch5.MapMode = "FlatFace"
sketch5.AttachmentOffset = App.Placement(App.Vector(0, 0, 1.15), App.Rotation())
sketch5.addGeometry(Part.Circle(App.Vector(0, 0, 0), App.Vector(0, 0, 1), 1.5), False)
sketch5.addConstraint(Sketcher.Constraint("Coincident", 0, 3, -1, 1))
sketch5.addConstraint(Sketcher.Constraint("Diameter", 0, 3.0))
doc.recompute()
hole2 = body.newObject("PartDesign::Hole", "Hole001")
hole2.Profile = sketch5
hole2.ThreadType = "None"
hole2.Diameter = 3
hole2.DepthType = "Dimension"
hole2.Depth = 5.5
hole2.DrillPoint = "Flat"

doc.recompute()
